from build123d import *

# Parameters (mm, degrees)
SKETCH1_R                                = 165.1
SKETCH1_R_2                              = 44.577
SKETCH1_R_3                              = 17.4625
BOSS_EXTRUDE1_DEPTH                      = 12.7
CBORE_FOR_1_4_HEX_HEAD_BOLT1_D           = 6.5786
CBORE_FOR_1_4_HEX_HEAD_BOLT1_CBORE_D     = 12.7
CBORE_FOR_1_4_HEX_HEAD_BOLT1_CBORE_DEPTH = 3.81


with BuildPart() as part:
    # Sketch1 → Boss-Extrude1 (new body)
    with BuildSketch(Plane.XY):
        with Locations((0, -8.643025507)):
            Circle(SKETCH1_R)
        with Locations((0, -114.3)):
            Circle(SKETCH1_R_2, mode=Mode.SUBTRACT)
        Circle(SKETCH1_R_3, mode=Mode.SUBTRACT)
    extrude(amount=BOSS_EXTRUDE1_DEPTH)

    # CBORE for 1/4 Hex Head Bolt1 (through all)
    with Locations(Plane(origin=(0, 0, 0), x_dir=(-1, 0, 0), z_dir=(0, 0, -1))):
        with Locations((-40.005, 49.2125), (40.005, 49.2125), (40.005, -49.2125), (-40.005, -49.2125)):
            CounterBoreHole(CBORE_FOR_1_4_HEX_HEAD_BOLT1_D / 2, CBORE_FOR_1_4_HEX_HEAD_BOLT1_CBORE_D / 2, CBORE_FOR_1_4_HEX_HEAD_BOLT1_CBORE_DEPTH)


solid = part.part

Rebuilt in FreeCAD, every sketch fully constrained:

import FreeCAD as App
import Part
import Sketcher

V = App.Vector
Q = App.Units.Quantity

doc = App.newDocument("Part")
params = doc.addObject("Spreadsheet::Sheet", "Params")
for row, (alias, value) in enumerate([
    ("sketch1_diameter", "13 in"),
    ("sketch1_diameter2", "3.51 in"),
    ("sketch1_diameter3", "1.375 in"),
    ("pad1_length", "0.5 in"),
    ("sketch2_diameter", "0.259 in"),
    ("hole_diameter", "0.259 in"),
    ("hole_cbore_diameter", "0.5 in"),
    ("hole_cbore_depth", "0.15 in"),
], start=1):
    params.set(f"A{row}", alias)
    params.set(f"B{row}", "=" + value)
    params.setAlias(f"B{row}", alias)

body = doc.addObject("PartDesign::Body", "Body")

# Sketch on XY plane
sketch1 = body.newObject("Sketcher::SketchObject", "Sketch")
sketch1.AttachmentSupport = (doc.getObject("XY_Plane"), [""])
sketch1.MapMode = "FlatFace"
sketch1.addGeometry(Part.Circle(V(0, -9, 0), V(0, 0, 1), 165), False)
sketch1.addGeometry(Part.Circle(V(0, -114, 0), V(0, 0, 1), 45), False)
sketch1.addGeometry(Part.Circle(V(0, 0, 0), V(0, 0, 1), 17), False)
sketch1.addConstraint(Sketcher.Constraint("Coincident", 2, 3, -1, 1))
sketch1.addConstraint(Sketcher.Constraint("PointOnObject", 0, 3, -2))
sketch1.addConstraint(Sketcher.Constraint("PointOnObject", 1, 3, -2))
sketch1.addConstraint(Sketcher.Constraint("Diameter", 0, Q("13 in")))
sketch1.addConstraint(Sketcher.Constraint("Diameter", 1, Q("3.51 in")))
sketch1.addConstraint(Sketcher.Constraint("Diameter", 2, Q("1.375 in")))
sketch1.addConstraint(Sketcher.Constraint("DistanceY", 1, 3, -1, 1, Q("4.5 in")))
sketch1.addConstraint(Sketcher.Constraint("DistanceY", 0, 3, -1, 1, Q("8.643026 mm")))
sketch1.setExpression("Constraints[3]", "Params.sketch1_diameter")
sketch1.setExpression("Constraints[4]", "Params.sketch1_diameter2")
sketch1.setExpression("Constraints[5]", "Params.sketch1_diameter3")
pad1 = body.newObject("PartDesign::Pad", "Pad")
pad1.Profile = sketch1
pad1.setExpression("Length", "Params.pad1_length")

# Sketch on XY plane
sketch2 = body.newObject("Sketcher::SketchObject", "Sketch001")
sketch2.AttachmentSupport = (doc.getObject("XY_Plane"), [""])
sketch2.MapMode = "FlatFace"
sketch2.addGeometry(Part.Circle(V(40, 49.2, 0), V(0, 0, 1), 3.3), False)
sketch2.addGeometry(Part.Circle(V(-40, 49.2, 0), V(0, 0, 1), 3.3), False)
sketch2.addGeometry(Part.Circle(V(-40, -49.2, 0), V(0, 0, 1), 3.3), False)
sketch2.addGeometry(Part.Circle(V(40, -49.2, 0), V(0, 0, 1), 3.3), False)
sketch2.addConstraint(Sketcher.Constraint("Equal", 0, 1))
sketch2.addConstraint(Sketcher.Constraint("Equal", 1, 2))
sketch2.addConstraint(Sketcher.Constraint("Equal", 2, 3))
sketch2.addConstraint(Sketcher.Constraint("Symmetric", 0, 3, 2, 3, -1, 1))
sketch2.addConstraint(Sketcher.Constraint("Symmetric", 1, 3, 3, 3, -1, 1))
sketch2.addConstraint(Sketcher.Constraint("Symmetric", 0, 3, 1, 3, -2))
sketch2.addConstraint(Sketcher.Constraint("Diameter", 0, Q("0.259 in")))
sketch2.addConstraint(Sketcher.Constraint("DistanceX", 1, 3, 0, 3, Q("3.15 in")))
sketch2.addConstraint(Sketcher.Constraint("DistanceY", -1, 1, 0, 3, Q("1.9375 in")))
sketch2.setExpression("Constraints[6]", "Params.sketch2_diameter")
doc.recompute()
hole = body.newObject("PartDesign::Hole", "Hole")
hole.Profile = sketch2
hole.ThreadType = "None"
hole.setExpression("Diameter", "Params.hole_diameter")
hole.DepthType = "ThroughAll"
hole.HoleCutType = "Counterbore"
hole.setExpression("HoleCutDiameter", "Params.hole_cbore_diameter")
hole.setExpression("HoleCutDepth", "Params.hole_cbore_depth")
hole.Reversed = True

doc.recompute()
